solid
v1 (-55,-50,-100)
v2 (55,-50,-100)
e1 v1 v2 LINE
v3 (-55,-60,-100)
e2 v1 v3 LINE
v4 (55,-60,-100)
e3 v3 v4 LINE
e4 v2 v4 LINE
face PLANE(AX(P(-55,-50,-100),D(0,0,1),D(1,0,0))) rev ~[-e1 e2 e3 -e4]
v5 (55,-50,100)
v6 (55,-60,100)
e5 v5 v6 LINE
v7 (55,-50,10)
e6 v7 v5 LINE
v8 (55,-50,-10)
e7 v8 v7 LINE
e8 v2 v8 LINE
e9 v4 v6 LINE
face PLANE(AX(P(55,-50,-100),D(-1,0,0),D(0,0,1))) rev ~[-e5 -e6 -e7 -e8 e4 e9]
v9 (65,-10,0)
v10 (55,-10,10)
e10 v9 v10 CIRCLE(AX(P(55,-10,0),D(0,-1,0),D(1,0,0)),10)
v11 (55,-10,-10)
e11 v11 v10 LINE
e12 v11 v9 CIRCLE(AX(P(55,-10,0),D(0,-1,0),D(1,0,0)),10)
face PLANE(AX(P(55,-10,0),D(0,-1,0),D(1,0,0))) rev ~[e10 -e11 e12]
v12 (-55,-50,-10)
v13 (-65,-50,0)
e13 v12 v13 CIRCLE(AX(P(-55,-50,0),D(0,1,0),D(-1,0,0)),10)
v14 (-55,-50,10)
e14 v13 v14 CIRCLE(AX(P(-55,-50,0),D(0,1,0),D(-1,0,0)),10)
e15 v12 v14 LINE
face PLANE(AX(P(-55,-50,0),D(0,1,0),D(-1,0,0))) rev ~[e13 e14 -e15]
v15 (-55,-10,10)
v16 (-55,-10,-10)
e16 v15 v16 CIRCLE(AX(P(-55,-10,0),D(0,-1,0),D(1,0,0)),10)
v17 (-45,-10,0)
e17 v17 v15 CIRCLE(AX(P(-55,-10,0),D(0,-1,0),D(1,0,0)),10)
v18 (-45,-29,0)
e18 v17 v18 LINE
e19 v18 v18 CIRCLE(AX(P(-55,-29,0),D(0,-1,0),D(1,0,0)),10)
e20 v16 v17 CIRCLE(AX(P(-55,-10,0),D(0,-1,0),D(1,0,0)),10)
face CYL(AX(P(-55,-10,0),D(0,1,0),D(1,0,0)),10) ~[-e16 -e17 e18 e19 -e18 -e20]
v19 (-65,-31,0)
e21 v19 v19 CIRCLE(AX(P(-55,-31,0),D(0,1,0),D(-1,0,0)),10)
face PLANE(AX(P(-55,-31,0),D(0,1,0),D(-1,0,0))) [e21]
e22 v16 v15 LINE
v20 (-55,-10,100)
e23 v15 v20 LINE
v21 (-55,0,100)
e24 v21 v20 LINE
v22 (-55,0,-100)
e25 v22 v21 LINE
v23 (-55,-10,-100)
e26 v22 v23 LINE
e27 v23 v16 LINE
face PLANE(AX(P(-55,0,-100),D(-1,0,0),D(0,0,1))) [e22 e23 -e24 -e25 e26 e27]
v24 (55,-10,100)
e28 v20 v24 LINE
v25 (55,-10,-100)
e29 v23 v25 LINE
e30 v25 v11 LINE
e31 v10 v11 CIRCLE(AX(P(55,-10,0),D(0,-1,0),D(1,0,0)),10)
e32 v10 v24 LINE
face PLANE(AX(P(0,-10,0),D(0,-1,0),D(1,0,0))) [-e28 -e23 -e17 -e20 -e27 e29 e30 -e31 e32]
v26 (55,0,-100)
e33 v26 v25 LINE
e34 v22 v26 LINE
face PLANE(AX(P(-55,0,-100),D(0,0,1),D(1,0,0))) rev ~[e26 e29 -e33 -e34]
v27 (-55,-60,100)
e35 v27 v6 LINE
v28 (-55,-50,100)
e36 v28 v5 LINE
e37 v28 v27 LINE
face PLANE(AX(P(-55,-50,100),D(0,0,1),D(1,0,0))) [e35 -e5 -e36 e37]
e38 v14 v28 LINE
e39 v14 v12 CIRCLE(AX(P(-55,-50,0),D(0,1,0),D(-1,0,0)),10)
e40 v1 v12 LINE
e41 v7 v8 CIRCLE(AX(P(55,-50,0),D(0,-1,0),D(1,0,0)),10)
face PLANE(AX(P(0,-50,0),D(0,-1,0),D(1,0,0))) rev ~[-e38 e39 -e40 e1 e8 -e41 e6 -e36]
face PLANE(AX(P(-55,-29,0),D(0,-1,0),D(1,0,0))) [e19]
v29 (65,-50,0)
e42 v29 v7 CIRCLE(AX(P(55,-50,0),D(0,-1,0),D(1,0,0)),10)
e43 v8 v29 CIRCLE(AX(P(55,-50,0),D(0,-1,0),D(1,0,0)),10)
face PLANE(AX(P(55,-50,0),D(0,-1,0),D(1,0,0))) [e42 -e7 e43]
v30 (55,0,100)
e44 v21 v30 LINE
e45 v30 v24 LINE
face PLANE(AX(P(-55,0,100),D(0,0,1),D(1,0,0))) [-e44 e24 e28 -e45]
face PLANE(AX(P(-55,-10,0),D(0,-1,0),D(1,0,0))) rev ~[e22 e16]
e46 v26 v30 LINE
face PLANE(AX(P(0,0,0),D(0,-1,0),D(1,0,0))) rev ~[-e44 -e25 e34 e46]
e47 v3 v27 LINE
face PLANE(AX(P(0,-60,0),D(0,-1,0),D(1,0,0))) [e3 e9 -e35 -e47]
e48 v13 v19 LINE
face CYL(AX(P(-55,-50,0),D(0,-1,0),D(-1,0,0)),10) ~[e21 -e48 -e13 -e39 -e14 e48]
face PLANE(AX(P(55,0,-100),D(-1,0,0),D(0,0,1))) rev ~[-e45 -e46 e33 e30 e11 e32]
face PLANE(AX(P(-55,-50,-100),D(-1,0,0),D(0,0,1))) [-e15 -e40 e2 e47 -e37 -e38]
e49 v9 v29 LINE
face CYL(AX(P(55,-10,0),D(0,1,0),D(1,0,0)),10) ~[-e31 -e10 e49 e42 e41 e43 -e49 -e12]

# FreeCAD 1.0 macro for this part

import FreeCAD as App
import Part
import Sketcher

V = App.Vector

doc = App.newDocument("Part")
params = doc.addObject("Spreadsheet::Sheet", "Params")
for row, (alias, value) in enumerate([
    ("sketch1_width", "110 mm"),
    ("sketch1_height", "200 mm"),
    ("pad1_length", "10 mm"),
    ("sketch2_diameter", "20 mm"),
    ("pad2_length", "40 mm"),
    ("sketch3_width", "110 mm"),
    ("sketch3_height", "200 mm"),
    ("pad3_length", "10 mm"),
    ("sketch4_diameter", "20 mm"),
    ("pad4_length", "19 mm"),
    ("sketch5_diameter", "20 mm"),
    ("pad5_length", "19 mm"),
], start=1):
    params.set(f"A{row}", alias)
    params.set(f"B{row}", "=" + value)
    params.setAlias(f"B{row}", alias)

body = doc.addObject("PartDesign::Body", "Body")

sketch1 = body.newObject("Sketcher::SketchObject", "Sketch")
sketch1.AttachmentSupport = (doc.getObject("XZ_Plane"), [""])
sketch1.MapMode = "FlatFace"
sketch1.addGeometry(Part.LineSegment(V(-55, 100, 0), V(-55, -100, 0)), False)
sketch1.addGeometry(Part.LineSegment(V(-55, -100, 0), V(55, -100, 0)), False)
sketch1.addGeometry(Part.LineSegment(V(55, -100, 0), V(55, 100, 0)), False)
sketch1.addGeometry(Part.LineSegment(V(55, 100, 0), V(-55, 100, 0)), False)
sketch1.addConstraint(Sketcher.Constraint("Coincident", 0, 2, 1, 1))
sketch1.addConstraint(Sketcher.Constraint("Coincident", 1, 2, 2, 1))
sketch1.addConstraint(Sketcher.Constraint("Coincident", 2, 2, 3, 1))
sketch1.addConstraint(Sketcher.Constraint("Coincident", 3, 2, 0, 1))
sketch1.addConstraint(Sketcher.Constraint("Vertical", 0))
sketch1.addConstraint(Sketcher.Constraint("Horizontal", 1))
sketch1.addConstraint(Sketcher.Constraint("Vertical", 2))
sketch1.addConstraint(Sketcher.Constraint("Horizontal", 3))
sketch1.addConstraint(Sketcher.Constraint("Symmetric", 0, 2, 2, 2, -1, 1))
sketch1.addConstraint(Sketcher.Constraint("DistanceX", 1, 1, 1, 2, 110.0))
sketch1.addConstraint(Sketcher.Constraint("DistanceY", 0, 2, 0, 1, 200.0))
sketch1.setExpression("Constraints[9]", "Params.sketch1_width")
sketch1.setExpression("Constraints[10]", "Params.sketch1_height")
pad1 = body.newObject("PartDesign::Pad", "Pad")
pad1.Profile = sketch1
pad1.setExpression("Length", "Params.pad1_length")

sketch2 = body.newObject("Sketcher::SketchObject", "Sketch001")
sketch2.AttachmentSupport = (doc.getObject("XZ_Plane"), [""])
sketch2.MapMode = "FlatFace"
sketch2.AttachmentOffset = App.Placement(V(0, 0, 10), App.Rotation())
sketch2.addGeometry(Part.Circle(V(55, 0, 0), V(0, 0, 1), 10), False)
sketch2.addConstraint(Sketcher.Constraint("PointOnObject", 0, 3, -1))
sketch2.addConstraint(Sketcher.Constraint("Diameter", 0, 20.0))
sketch2.addConstraint(Sketcher.Constraint("DistanceX", -1, 1, 0, 3, 55.0))
sketch2.setExpression("Constraints[1]", "Params.sketch2_diameter")
pad2 = body.newObject("PartDesign::Pad", "Pad001")
pad2.Profile = sketch2
pad2.setExpression("Length", "Params.pad2_length")

sketch3 = body.newObject("Sketcher::SketchObject", "Sketch002")
sketch3.AttachmentSupport = (doc.getObject("XZ_Plane"), [""])
sketch3.MapMode = "FlatFace"
sketch3.AttachmentOffset = App.Placement(V(0, 0, 50), App.Rotation())
sketch3.addGeometry(Part.LineSegment(V(-55, 100, 0), V(-55, -100, 0)), False)
sketch3.addGeometry(Part.LineSegment(V(-55, -100, 0), V(55, -100, 0)), False)
sketch3.addGeometry(Part.LineSegment(V(55, -100, 0), V(55, 100, 0)), False)
sketch3.addGeometry(Part.LineSegment(V(55, 100, 0), V(-55, 100, 0)), False)
sketch3.addConstraint(Sketcher.Constraint("Coincident", 0, 2, 1, 1))
sketch3.addConstraint(Sketcher.Constraint("Coincident", 1, 2, 2, 1))
sketch3.addConstraint(Sketcher.Constraint("Coincident", 2, 2, 3, 1))
sketch3.addConstraint(Sketcher.Constraint("Coincident", 3, 2, 0, 1))
sketch3.addConstraint(Sketcher.Constraint("Vertical", 0))
sketch3.addConstraint(Sketcher.Constraint("Horizontal", 1))
sketch3.addConstraint(Sketcher.Constraint("Vertical", 2))
sketch3.addConstraint(Sketcher.Constraint("Horizontal", 3))
sketch3.addConstraint(Sketcher.Constraint("Symmetric", 0, 2, 2, 2, -1, 1))
sketch3.addConstraint(Sketcher.Constraint("DistanceX", 1, 1, 1, 2, 110.0))
sketch3.addConstraint(Sketcher.Constraint("DistanceY", 0, 2, 0, 1, 200.0))
sketch3.setExpression("Constraints[9]", "Params.sketch3_width")
sketch3.setExpression("Constraints[10]", "Params.sketch3_height")
pad3 = body.newObject("PartDesign::Pad", "Pad002")
pad3.Profile = sketch3
pad3.setExpression("Length", "Params.pad3_length")

sketch4 = body.newObject("Sketcher::SketchObject", "Sketch003")
sketch4.AttachmentSupport = (doc.getObject("XZ_Plane"), [""])
sketch4.MapMode = "FlatFace"
sketch4.AttachmentOffset = App.Placement(V(0, 0, 10), App.Rotation())
sketch4.addGeometry(Part.Circle(V(-55, 0, 0), V(0, 0, 1), 10), False)
sketch4.addConstraint(Sketcher.Constraint("PointOnObject", 0, 3, -1))
sketch4.addConstraint(Sketcher.Constraint("Diameter", 0, 20.0))
sketch4.addConstraint(Sketcher.Constraint("DistanceX", 0, 3, -1, 1, 55.0))
sketch4.setExpression("Constraints[1]", "Params.sketch4_diameter")
pad4 = body.newObject("PartDesign::Pad", "Pad003")
pad4.Profile = sketch4
pad4.setExpression("Length", "Params.pad4_length")

sketch5 = body.newObject("Sketcher::SketchObject", "Sketch004")
sketch5.AttachmentSupport = (doc.getObject("XZ_Plane"), [""])
sketch5.MapMode = "FlatFace"
sketch5.AttachmentOffset = App.Placement(V(0, 0, 50), App.Rotation())
sketch5.addGeometry(Part.Circle(V(-55, 0, 0), V(0, 0, 1), 10), False)
sketch5.addConstraint(Sketcher.Constraint("PointOnObject", 0, 3, -1))
sketch5.addConstraint(Sketcher.Constraint("Diameter", 0, 20.0))
sketch5.addConstraint(Sketcher.Constraint("DistanceX", 0, 3, -1, 1, 55.0))
sketch5.setExpression("Constraints[1]", "Params.sketch5_diameter")
pad5 = body.newObject("PartDesign::Pad", "Pad004")
pad5.Profile = sketch5
pad5.setExpression("Length", "Params.pad5_length")
pad5.Reversed = True

doc.recompute()
